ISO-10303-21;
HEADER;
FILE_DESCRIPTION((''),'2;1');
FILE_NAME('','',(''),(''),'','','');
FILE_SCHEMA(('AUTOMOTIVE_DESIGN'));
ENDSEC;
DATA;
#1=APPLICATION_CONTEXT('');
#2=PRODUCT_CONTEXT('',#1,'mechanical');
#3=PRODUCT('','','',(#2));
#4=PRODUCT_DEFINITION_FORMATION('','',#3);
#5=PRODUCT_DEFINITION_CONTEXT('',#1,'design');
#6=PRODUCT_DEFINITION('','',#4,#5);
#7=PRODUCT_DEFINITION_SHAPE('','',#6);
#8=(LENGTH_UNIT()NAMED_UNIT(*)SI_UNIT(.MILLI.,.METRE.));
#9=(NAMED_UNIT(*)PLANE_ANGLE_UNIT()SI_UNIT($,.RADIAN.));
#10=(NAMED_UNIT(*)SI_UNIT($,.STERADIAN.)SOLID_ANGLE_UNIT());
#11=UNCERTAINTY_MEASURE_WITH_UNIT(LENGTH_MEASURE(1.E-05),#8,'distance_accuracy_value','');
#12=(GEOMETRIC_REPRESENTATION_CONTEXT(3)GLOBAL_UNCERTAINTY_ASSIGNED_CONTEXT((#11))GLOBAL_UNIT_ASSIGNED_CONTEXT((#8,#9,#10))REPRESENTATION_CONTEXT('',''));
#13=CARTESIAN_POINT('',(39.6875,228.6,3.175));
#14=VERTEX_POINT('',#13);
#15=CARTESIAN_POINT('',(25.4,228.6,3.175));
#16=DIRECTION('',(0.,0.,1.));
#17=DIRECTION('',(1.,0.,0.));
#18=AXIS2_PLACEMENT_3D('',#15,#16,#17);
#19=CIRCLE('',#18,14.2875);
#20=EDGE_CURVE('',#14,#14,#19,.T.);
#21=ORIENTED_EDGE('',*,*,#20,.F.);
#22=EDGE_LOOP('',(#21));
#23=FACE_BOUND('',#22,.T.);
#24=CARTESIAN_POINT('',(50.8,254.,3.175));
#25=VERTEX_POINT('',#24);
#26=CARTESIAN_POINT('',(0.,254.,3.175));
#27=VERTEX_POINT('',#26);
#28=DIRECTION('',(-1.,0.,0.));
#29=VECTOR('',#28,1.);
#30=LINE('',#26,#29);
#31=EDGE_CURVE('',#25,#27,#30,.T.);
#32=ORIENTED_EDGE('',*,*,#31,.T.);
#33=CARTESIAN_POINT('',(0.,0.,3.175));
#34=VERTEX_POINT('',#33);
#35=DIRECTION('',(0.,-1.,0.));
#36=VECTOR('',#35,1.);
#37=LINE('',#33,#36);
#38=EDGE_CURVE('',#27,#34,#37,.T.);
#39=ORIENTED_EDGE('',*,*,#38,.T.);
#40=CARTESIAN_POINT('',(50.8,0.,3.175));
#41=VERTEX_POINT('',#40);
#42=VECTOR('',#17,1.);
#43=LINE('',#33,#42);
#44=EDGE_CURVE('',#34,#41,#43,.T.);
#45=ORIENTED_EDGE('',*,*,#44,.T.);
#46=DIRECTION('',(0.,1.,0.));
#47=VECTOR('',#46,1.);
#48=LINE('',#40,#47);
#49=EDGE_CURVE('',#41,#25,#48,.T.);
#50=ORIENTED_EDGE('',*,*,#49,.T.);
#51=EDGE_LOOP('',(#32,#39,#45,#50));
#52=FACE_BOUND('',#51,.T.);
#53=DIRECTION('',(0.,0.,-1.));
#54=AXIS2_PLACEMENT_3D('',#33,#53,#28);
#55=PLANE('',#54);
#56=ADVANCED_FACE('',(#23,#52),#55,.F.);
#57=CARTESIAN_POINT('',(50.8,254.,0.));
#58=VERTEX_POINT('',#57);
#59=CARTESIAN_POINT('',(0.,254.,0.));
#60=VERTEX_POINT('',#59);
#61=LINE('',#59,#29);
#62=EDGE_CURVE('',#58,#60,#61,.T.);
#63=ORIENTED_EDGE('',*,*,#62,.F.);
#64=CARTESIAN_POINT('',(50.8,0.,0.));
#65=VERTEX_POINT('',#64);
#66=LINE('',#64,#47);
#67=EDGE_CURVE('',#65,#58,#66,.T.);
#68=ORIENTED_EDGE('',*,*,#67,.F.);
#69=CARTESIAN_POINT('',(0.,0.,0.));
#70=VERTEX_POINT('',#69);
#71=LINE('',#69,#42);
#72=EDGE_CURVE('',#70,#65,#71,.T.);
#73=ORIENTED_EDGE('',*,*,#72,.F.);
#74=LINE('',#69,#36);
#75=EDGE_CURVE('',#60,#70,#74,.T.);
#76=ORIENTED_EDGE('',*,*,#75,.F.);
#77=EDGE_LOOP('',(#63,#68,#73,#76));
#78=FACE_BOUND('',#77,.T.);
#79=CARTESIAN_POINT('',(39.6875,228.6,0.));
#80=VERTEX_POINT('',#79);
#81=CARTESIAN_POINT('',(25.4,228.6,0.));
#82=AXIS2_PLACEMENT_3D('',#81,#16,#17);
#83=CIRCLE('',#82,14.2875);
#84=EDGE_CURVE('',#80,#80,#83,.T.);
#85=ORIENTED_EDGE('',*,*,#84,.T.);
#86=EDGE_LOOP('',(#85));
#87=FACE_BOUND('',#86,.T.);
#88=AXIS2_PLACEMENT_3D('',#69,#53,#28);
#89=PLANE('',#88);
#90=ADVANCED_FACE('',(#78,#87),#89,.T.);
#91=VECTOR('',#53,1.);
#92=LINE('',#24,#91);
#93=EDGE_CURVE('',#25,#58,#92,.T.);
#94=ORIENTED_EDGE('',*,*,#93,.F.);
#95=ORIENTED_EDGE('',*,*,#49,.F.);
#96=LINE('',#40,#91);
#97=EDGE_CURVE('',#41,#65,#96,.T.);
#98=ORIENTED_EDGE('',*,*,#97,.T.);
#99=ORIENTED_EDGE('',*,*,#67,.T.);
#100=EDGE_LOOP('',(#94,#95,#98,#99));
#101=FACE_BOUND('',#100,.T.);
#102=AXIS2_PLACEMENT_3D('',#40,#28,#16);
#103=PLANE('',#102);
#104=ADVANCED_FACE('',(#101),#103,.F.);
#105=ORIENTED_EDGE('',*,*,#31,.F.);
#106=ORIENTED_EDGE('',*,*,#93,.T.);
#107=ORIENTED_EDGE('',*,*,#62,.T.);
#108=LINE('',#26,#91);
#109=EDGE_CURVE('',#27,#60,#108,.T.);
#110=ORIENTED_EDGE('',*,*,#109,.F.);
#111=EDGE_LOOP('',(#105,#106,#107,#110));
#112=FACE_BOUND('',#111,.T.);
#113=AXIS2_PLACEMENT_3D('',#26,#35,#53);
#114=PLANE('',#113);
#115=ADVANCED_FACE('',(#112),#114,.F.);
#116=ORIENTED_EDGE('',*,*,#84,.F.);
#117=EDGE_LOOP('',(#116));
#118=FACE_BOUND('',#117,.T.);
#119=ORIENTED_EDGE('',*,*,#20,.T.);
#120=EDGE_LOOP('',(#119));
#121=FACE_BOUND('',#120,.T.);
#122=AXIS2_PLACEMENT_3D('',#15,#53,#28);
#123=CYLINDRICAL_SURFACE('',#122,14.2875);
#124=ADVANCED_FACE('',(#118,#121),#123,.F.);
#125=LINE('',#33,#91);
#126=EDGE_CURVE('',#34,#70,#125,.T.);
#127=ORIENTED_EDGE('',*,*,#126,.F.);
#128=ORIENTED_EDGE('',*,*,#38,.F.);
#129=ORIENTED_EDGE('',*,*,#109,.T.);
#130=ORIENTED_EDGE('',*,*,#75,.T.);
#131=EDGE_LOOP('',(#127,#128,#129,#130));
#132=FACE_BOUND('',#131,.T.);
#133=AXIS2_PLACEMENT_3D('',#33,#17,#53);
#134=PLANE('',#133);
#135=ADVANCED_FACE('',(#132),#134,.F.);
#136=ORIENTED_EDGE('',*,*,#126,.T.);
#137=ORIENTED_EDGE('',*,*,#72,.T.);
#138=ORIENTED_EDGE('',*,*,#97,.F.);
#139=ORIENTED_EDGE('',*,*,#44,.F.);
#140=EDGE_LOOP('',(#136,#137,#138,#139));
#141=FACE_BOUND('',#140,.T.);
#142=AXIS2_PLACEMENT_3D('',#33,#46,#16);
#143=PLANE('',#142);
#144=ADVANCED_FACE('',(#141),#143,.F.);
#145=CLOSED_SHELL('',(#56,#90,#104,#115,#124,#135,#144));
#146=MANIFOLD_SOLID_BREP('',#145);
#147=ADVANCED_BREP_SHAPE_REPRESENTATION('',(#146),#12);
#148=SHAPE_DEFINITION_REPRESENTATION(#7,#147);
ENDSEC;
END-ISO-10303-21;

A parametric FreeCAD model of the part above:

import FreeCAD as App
import Part
import Sketcher

V = App.Vector
Q = App.Units.Quantity


def add_polygon(sketch, points):
    """Adds a closed chain of lines whose ends are joined by coincident constraints."""
    first, n = sketch.GeometryCount, len(points)
    for a, b in zip(points, points[1:] + points[:1]):
        sketch.addGeometry(Part.LineSegment(App.Vector(*a, 0), App.Vector(*b, 0)), False)
    for i in range(n):
        sketch.addConstraint(Sketcher.Constraint("Coincident", first + i, 2, first + (i + 1) % n, 1))

doc = App.newDocument("Part")
body = doc.addObject("PartDesign::Body", "Body")

# Sketch on XY plane
sketch1 = body.newObject("Sketcher::SketchObject", "Sketch")
sketch1.AttachmentSupport = (doc.getObject("XY_Plane"), [""])
sketch1.MapMode = "FlatFace"
add_polygon(sketch1, [(0, 254), (0, 0), (50.8, 0), (50.8, 254)])  # lines 0-3
sketch1.addGeometry(Part.Circle(V(25.4, 228.6, 0), V(0, 0, 1), 14.2875), False)  # 4
sketch1.addConstraint([
    Sketcher.Constraint("Vertical", 0),
    Sketcher.Constraint("Horizontal", 1),
    Sketcher.Constraint("Vertical", 2),
    Sketcher.Constraint("Horizontal", 3),
    Sketcher.Constraint("Coincident", 0, 2, -1, 1),
    Sketcher.Constraint("DistanceX", 1, 1, 1, 2, Q("2 in")),
    Sketcher.Constraint("DistanceY", 0, 2, 0, 1, Q("10 in")),
    Sketcher.Constraint("Diameter", 4, Q("1.125 in")),
    Sketcher.Constraint("DistanceX", -1, 1, 4, 3, Q("1 in")),
    Sketcher.Constraint("DistanceY", -1, 1, 4, 3, Q("9 in")),
])
pad1 = body.newObject("PartDesign::Pad", "Pad")
pad1.Profile = sketch1
pad1.Length = Q("0.125 in")

doc.recompute()
